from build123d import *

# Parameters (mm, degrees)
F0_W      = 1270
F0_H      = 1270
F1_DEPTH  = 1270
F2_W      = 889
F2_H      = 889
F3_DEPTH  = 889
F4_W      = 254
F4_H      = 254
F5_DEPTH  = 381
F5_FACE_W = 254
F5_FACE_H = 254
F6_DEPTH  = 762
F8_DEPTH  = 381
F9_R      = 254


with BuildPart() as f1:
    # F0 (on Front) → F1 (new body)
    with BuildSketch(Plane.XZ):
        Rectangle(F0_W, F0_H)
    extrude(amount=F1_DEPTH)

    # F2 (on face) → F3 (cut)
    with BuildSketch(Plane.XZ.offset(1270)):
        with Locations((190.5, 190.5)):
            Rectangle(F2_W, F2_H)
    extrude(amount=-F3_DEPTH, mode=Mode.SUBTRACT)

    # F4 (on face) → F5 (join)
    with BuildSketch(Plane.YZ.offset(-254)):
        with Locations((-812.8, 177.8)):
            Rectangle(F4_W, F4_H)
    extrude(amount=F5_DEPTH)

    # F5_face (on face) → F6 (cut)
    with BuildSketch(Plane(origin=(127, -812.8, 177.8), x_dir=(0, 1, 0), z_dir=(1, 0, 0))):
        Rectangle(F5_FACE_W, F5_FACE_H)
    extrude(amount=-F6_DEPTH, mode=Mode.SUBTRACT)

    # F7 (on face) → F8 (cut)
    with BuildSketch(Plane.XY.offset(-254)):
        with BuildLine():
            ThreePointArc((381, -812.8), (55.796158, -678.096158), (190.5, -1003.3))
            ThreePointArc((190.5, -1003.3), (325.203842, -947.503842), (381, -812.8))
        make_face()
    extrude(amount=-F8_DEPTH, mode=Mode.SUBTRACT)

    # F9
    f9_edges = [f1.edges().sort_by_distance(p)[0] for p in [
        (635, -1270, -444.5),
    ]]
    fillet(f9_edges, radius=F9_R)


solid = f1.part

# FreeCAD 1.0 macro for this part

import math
import FreeCAD as App
import Part
import Sketcher
from FreeCAD import Vector
Q = App.Units.Quantity


def edges_at(feature, points):
    """Names of the edges that pass closest to the given points."""
    edges = feature.Shape.Edges
    near = lambda p: min(range(len(edges)), key=lambda i: edges[i].distToShape(Part.Vertex(*p))[0])
    return sorted({f"Edge{near(p) + 1}" for p in points})

doc = App.newDocument("Part")
body = doc.addObject("PartDesign::Body", "Body")

# Sketch on XZ plane
sketch1 = body.newObject("Sketcher::SketchObject", "Sketch")
sketch1.AttachmentSupport = (doc.getObject("XZ_Plane"), [""])
sketch1.MapMode = "FlatFace"
sketch1.addGeometry(Part.LineSegment(Vector(-635, 635, 0), Vector(-635, -635, 0)), False)
sketch1.addGeometry(Part.LineSegment(Vector(-635, -635, 0), Vector(635, -635, 0)), False)
sketch1.addGeometry(Part.LineSegment(Vector(635, -635, 0), Vector(635, 635, 0)), False)
sketch1.addGeometry(Part.LineSegment(Vector(635, 635, 0), Vector(-635, 635, 0)), False)
sketch1.addConstraint(Sketcher.Constraint("Coincident", 0, 2, 1, 1))
sketch1.addConstraint(Sketcher.Constraint("Coincident", 1, 2, 2, 1))
sketch1.addConstraint(Sketcher.Constraint("Coincident", 2, 2, 3, 1))
sketch1.addConstraint(Sketcher.Constraint("Coincident", 3, 2, 0, 1))
sketch1.addConstraint(Sketcher.Constraint("Vertical", 0))
sketch1.addConstraint(Sketcher.Constraint("Horizontal", 1))
sketch1.addConstraint(Sketcher.Constraint("Vertical", 2))
sketch1.addConstraint(Sketcher.Constraint("Horizontal", 3))
sketch1.addConstraint(Sketcher.Constraint("Symmetric", 0, 2, 2, 2, -1, 1))
sketch1.addConstraint(Sketcher.Constraint("Equal", 3, 0))
sketch1.addConstraint(Sketcher.Constraint("DistanceX", 1, 1, 1, 2, Q("50 in")))
pad1 = body.newObject("PartDesign::Pad", "Pad")
pad1.Profile = sketch1
pad1.Length = Q("50 in")

# Sketch on XZ plane
sketch2 = body.newObject("Sketcher::SketchObject", "Sketch001")
sketch2.AttachmentSupport = (doc.getObject("XZ_Plane"), [""])
sketch2.MapMode = "FlatFace"
sketch2.AttachmentOffset = App.Placement(Vector(0, 0, 50 * 25.4), App.Rotation())
sketch2.addGeometry(Part.LineSegment(Vector(-254, 635, 0), Vector(-254, -254, 0)), False)
sketch2.addGeometry(Part.LineSegment(Vector(-254, -254, 0), Vector(635, -254, 0)), False)
sketch2.addGeometry(Part.LineSegment(Vector(635, -254, 0), Vector(635, 635, 0)), False)
sketch2.addGeometry(Part.LineSegment(Vector(635, 635, 0), Vector(-254, 635, 0)), False)
sketch2.addConstraint(Sketcher.Constraint("Coincident", 0, 2, 1, 1))
sketch2.addConstraint(Sketcher.Constraint("Coincident", 1, 2, 2, 1))
sketch2.addConstraint(Sketcher.Constraint("Coincident", 2, 2, 3, 1))
sketch2.addConstraint(Sketcher.Constraint("Coincident", 3, 2, 0, 1))
sketch2.addConstraint(Sketcher.Constraint("Vertical", 0))
sketch2.addConstraint(Sketcher.Constraint("Horizontal", 1))
sketch2.addConstraint(Sketcher.Constraint("Vertical", 2))
sketch2.addConstraint(Sketcher.Constraint("Horizontal", 3))
sketch2.addConstraint(Sketcher.Constraint("Equal", 3, 0))
sketch2.addConstraint(Sketcher.Constraint("DistanceX", 1, 1, 1, 2, Q("35 in")))
sketch2.addConstraint(Sketcher.Constraint("DistanceX", 0, 2, -1, 1, Q("10 in")))
sketch2.addConstraint(Sketcher.Constraint("DistanceY", 0, 2, -1, 1, Q("10 in")))
pocket1 = body.newObject("PartDesign::Pocket", "Pocket")
pocket1.Profile = sketch2
pocket1.Length = Q("35 in")

# Sketch on YZ plane
sketch3 = body.newObject("Sketcher::SketchObject", "Sketch002")
sketch3.AttachmentSupport = (doc.getObject("YZ_Plane"), [""])
sketch3.MapMode = "FlatFace"
sketch3.AttachmentOffset = App.Placement(Vector(0, 0, -10 * 25.4), App.Rotation())
sketch3.addGeometry(Part.LineSegment(Vector(-940, 305, 0), Vector(-940, 51, 0)), False)
sketch3.addGeometry(Part.LineSegment(Vector(-940, 51, 0), Vector(-686, 51, 0)), False)
sketch3.addGeometry(Part.LineSegment(Vector(-686, 51, 0), Vector(-686, 305, 0)), False)
sketch3.addGeometry(Part.LineSegment(Vector(-686, 305, 0), Vector(-940, 305, 0)), False)
sketch3.addConstraint(Sketcher.Constraint("Coincident", 0, 2, 1, 1))
sketch3.addConstraint(Sketcher.Constraint("Coincident", 1, 2, 2, 1))
sketch3.addConstraint(Sketcher.Constraint("Coincident", 2, 2, 3, 1))
sketch3.addConstraint(Sketcher.Constraint("Coincident", 3, 2, 0, 1))
sketch3.addConstraint(Sketcher.Constraint("Vertical", 0))
sketch3.addConstraint(Sketcher.Constraint("Horizontal", 1))
sketch3.addConstraint(Sketcher.Constraint("Vertical", 2))
sketch3.addConstraint(Sketcher.Constraint("Horizontal", 3))
sketch3.addConstraint(Sketcher.Constraint("Equal", 3, 0))
sketch3.addConstraint(Sketcher.Constraint("DistanceX", 1, 1, 1, 2, Q("10 in")))
sketch3.addConstraint(Sketcher.Constraint("DistanceX", 0, 2, -1, 1, Q("37 in")))
sketch3.addConstraint(Sketcher.Constraint("DistanceY", -1, 1, 0, 2, Q("2 in")))
pad2 = body.newObject("PartDesign::Pad", "Pad001")
pad2.Profile = sketch3
pad2.Length = Q("15 in")

# Sketch on YZ plane
sketch4 = body.newObject("Sketcher::SketchObject", "Sketch003")
sketch4.AttachmentSupport = (doc.getObject("YZ_Plane"), [""])
sketch4.MapMode = "FlatFace"
sketch4.AttachmentOffset = App.Placement(Vector(0, 0, 5 * 25.4), App.Rotation())
sketch4.addGeometry(Part.LineSegment(Vector(-940, 305, 0), Vector(-940, 51, 0)), False)
sketch4.addGeometry(Part.LineSegment(Vector(-940, 51, 0), Vector(-686, 51, 0)), False)
sketch4.addGeometry(Part.LineSegment(Vector(-686, 51, 0), Vector(-686, 305, 0)), False)
sketch4.addGeometry(Part.LineSegment(Vector(-686, 305, 0), Vector(-940, 305, 0)), False)
sketch4.addConstraint(Sketcher.Constraint("Coincident", 0, 2, 1, 1))
sketch4.addConstraint(Sketcher.Constraint("Coincident", 1, 2, 2, 1))
sketch4.addConstraint(Sketcher.Constraint("Coincident", 2, 2, 3, 1))
sketch4.addConstraint(Sketcher.Constraint("Coincident", 3, 2, 0, 1))
sketch4.addConstraint(Sketcher.Constraint("Vertical", 0))
sketch4.addConstraint(Sketcher.Constraint("Horizontal", 1))
sketch4.addConstraint(Sketcher.Constraint("Vertical", 2))
sketch4.addConstraint(Sketcher.Constraint("Horizontal", 3))
sketch4.addConstraint(Sketcher.Constraint("Equal", 3, 0))
sketch4.addConstraint(Sketcher.Constraint("DistanceX", 1, 1, 1, 2, Q("10 in")))
sketch4.addConstraint(Sketcher.Constraint("DistanceX", 0, 2, -1, 1, Q("37 in")))
sketch4.addConstraint(Sketcher.Constraint("DistanceY", -1, 1, 0, 2, Q("2 in")))
pocket2 = body.newObject("PartDesign::Pocket", "Pocket001")
pocket2.Profile = sketch4
pocket2.Length = Q("30 in")

# Sketch on XY plane
sketch5 = body.newObject("Sketcher::SketchObject", "Sketch004")
sketch5.AttachmentSupport = (doc.getObject("XY_Plane"), [""])
sketch5.MapMode = "FlatFace"
sketch5.AttachmentOffset = App.Placement(Vector(0, 0, -10 * 25.4), App.Rotation())
sketch5.addGeometry(Part.ArcOfCircle(Part.Circle(Vector(190, -813, 0), Vector(0, 0, 1), 191), math.radians(0), math.radians(270)), False)
sketch5.addGeometry(Part.ArcOfCircle(Part.Circle(Vector(191, -813, 0), Vector(0, 0, 1), 190), math.radians(-90), math.radians(0)), False)
sketch5.addConstraint(Sketcher.Constraint("Tangent", 0, 1, 1, 2))
sketch5.addConstraint(Sketcher.Constraint("Coincident", 1, 1, 0, 2))
sketch5.addConstraint(Sketcher.Constraint("Horizontal", 1, 3, 0, 1))
sketch5.addConstraint(Sketcher.Constraint("Vertical", 0, 3, 1, 1))
sketch5.addConstraint(Sketcher.Constraint("Radius", 0, Q("7.5 in")))
sketch5.addConstraint(Sketcher.Constraint("DistanceY", 0, 3, -1, 1, Q("32 in")))
sketch5.addConstraint(Sketcher.Constraint("DistanceX", -1, 1, 0, 1, Q("15 in")))
pocket3 = body.newObject("PartDesign::Pocket", "Pocket002")
pocket3.Profile = sketch5
pocket3.Length = Q("15 in")
doc.recompute()

fillet = body.newObject("PartDesign::Fillet", "Fillet")
fillet.Base = (pocket3, edges_at(pocket3, [(635, -1270, -444.5)]))
fillet.Radius = Q("10 in")

doc.recompute()
